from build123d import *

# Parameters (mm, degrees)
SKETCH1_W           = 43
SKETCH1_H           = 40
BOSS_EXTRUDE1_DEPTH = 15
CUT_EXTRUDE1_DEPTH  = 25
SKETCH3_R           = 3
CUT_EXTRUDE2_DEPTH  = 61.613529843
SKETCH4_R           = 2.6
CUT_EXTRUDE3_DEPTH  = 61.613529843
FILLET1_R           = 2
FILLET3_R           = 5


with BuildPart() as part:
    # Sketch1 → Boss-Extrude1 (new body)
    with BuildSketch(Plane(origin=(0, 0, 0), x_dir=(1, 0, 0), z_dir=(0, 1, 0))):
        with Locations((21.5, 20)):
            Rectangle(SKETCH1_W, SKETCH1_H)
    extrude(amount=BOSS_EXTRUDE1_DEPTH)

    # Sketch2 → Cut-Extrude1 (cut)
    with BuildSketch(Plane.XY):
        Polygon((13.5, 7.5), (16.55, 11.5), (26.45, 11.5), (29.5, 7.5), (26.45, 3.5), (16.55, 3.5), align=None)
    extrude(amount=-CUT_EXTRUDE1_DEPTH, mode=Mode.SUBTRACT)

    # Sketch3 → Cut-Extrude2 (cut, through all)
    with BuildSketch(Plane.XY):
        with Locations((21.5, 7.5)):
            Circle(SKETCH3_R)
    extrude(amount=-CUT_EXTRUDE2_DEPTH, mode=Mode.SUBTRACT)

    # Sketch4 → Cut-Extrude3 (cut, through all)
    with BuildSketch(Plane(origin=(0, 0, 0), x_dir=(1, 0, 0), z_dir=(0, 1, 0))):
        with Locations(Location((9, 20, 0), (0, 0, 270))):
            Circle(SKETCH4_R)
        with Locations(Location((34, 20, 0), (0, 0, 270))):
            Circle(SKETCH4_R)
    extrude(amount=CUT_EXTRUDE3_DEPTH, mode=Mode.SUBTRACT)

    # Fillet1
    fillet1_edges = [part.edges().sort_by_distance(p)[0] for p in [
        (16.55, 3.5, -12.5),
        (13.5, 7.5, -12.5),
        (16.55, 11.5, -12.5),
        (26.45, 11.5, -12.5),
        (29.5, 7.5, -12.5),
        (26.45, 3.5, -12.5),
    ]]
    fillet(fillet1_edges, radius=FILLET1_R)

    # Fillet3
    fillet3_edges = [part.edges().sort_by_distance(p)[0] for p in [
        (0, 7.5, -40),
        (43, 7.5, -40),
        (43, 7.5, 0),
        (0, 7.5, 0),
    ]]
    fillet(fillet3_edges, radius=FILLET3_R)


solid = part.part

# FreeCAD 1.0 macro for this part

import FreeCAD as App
import Part
import Sketcher
from FreeCAD import Vector


def edges_at(feature, points):
    """Names of the edges that pass closest to the given points."""
    edges = feature.Shape.Edges
    near = lambda p: min(range(len(edges)), key=lambda i: edges[i].distToShape(Part.Vertex(*p))[0])
    return sorted({f"Edge{near(p) + 1}" for p in points})


def add_polygon(sketch, points):
    """Adds a closed chain of lines whose ends are joined by coincident constraints."""
    first, n = sketch.GeometryCount, len(points)
    for a, b in zip(points, points[1:] + points[:1]):
        sketch.addGeometry(Part.LineSegment(App.Vector(*a, 0), App.Vector(*b, 0)), False)
    for i in range(n):
        sketch.addConstraint(Sketcher.Constraint("Coincident", first + i, 2, first + (i + 1) % n, 1))

doc = App.newDocument("Part")
body = doc.addObject("PartDesign::Body", "Body")

sketch1 = doc.addObject("Sketcher::SketchObject", "Sketch")
body.addObject(sketch1)
sketch1.AttachmentSupport = (doc.XZ_Plane, [""])
sketch1.MapMode = "FlatFace"
add_polygon(sketch1, [(0, -40), (0, 0), (43, 0), (43, -40)])
sketch1.addConstraint([
    Sketcher.Constraint("Vertical", 0),
    Sketcher.Constraint("Horizontal", 1),
    Sketcher.Constraint("Vertical", 2),
    Sketcher.Constraint("Horizontal", 3),
    Sketcher.Constraint("Coincident", 0, 2, -1, 1),
    Sketcher.Constraint("DistanceX", 1, 1, 1, 2, 43.0),
    Sketcher.Constraint("DistanceY", 0, 1, 0, 2, 40.0),
])
pad1 = doc.addObject("PartDesign::Pad", "Pad")
body.addObject(pad1)
pad1.Profile = sketch1
pad1.Length = 15
pad1.Reversed = True

sketch2 = doc.addObject("Sketcher::SketchObject", "Sketch001")
body.addObject(sketch2)
sketch2.AttachmentSupport = (doc.XY_Plane, [""])
sketch2.MapMode = "FlatFace"
add_polygon(sketch2, [(16.55, 11.5), (13.5, 7.5), (16.55, 3.5), (26.45, 3.5), (29.5, 7.5), (26.45, 11.5)])
sketch2.addConstraint([
    Sketcher.Constraint("Horizontal", 2),
    Sketcher.Constraint("Horizontal", 5),
    Sketcher.Constraint("Parallel", 0, 3),
    Sketcher.Constraint("Parallel", 1, 4),
    Sketcher.Constraint("Horizontal", 0, 2, 3, 2),
    Sketcher.Constraint("Vertical", 2, 2, 4, 2),
    Sketcher.Constraint("Vertical", 1, 2, 5, 2),
    Sketcher.Constraint("DistanceX", 2, 1, 2, 2, 9.9),
    Sketcher.Constraint("DistanceY", 1, 2, 0, 2, 4.0),
    Sketcher.Constraint("DistanceX", 0, 2, 3, 2, 16.0),
    Sketcher.Constraint("DistanceX", -1, 1, 0, 2, 13.5),
    Sketcher.Constraint("DistanceY", -1, 1, 0, 2, 7.5),
])
pocket1 = doc.addObject("PartDesign::Pocket", "Pocket")
body.addObject(pocket1)
pocket1.Profile = sketch2
pocket1.Length = 25

sketch3 = doc.addObject("Sketcher::SketchObject", "Sketch002")
body.addObject(sketch3)
sketch3.AttachmentSupport = (doc.XY_Plane, [""])
sketch3.MapMode = "FlatFace"
sketch3.addGeometry(Part.Circle(Vector(21.5, 7.5, 0), Vector(0, 0, 1), 3), False)
sketch3.addConstraint([
    Sketcher.Constraint("Diameter", 0, 6.0),
    Sketcher.Constraint("DistanceX", -1, 1, 0, 3, 21.5),
    Sketcher.Constraint("DistanceY", -1, 1, 0, 3, 7.5),
])
pocket2 = doc.addObject("PartDesign::Pocket", "Pocket001")
body.addObject(pocket2)
pocket2.Profile = sketch3
pocket2.Type = "ThroughAll"

sketch4 = doc.addObject("Sketcher::SketchObject", "Sketch003")
body.addObject(sketch4)
sketch4.AttachmentSupport = (doc.XZ_Plane, [""])
sketch4.MapMode = "FlatFace"
sketch4.addGeometry([
    Part.Circle(Vector(9, -20, 0), Vector(0, 0, 1), 2.6),
    Part.Circle(Vector(34, -20, 0), Vector(0, 0, 1), 2.6),
], False)
sketch4.addConstraint([
    Sketcher.Constraint("Equal", 0, 1),
    Sketcher.Constraint("Horizontal", 0, 3, 1, 3),
    Sketcher.Constraint("Diameter", 0, 5.2),
    Sketcher.Constraint("DistanceX", -1, 1, 0, 3, 9.0),
    Sketcher.Constraint("DistanceY", 0, 3, -1, 1, 20.0),
    Sketcher.Constraint("DistanceX", -1, 1, 1, 3, 34.0),
])
pocket3 = doc.addObject("PartDesign::Pocket", "Pocket002")
body.addObject(pocket3)
pocket3.Profile = sketch4
pocket3.Type = "ThroughAll"
doc.recompute()

fillet = doc.addObject("PartDesign::Fillet", "Fillet")
body.addObject(fillet)
fillet.Base = (pocket3, edges_at(pocket3, [
    (16.55, 3.5, -12.5),
    (13.5, 7.5, -12.5),
    (16.55, 11.5, -12.5),
    (26.45, 11.5, -12.5),
    (29.5, 7.5, -12.5),
    (26.45, 3.5, -12.5),
]))
fillet.Radius = 2
doc.recompute()

fillet2 = doc.addObject("PartDesign::Fillet", "Fillet001")
body.addObject(fillet2)
fillet2.Base = (fillet, edges_at(fillet, [
    (0, 7.5, -40),
    (43, 7.5, -40),
    (43, 7.5, 0),
    (0, 7.5, 0),
]))
fillet2.Radius = 5

doc.recompute()
